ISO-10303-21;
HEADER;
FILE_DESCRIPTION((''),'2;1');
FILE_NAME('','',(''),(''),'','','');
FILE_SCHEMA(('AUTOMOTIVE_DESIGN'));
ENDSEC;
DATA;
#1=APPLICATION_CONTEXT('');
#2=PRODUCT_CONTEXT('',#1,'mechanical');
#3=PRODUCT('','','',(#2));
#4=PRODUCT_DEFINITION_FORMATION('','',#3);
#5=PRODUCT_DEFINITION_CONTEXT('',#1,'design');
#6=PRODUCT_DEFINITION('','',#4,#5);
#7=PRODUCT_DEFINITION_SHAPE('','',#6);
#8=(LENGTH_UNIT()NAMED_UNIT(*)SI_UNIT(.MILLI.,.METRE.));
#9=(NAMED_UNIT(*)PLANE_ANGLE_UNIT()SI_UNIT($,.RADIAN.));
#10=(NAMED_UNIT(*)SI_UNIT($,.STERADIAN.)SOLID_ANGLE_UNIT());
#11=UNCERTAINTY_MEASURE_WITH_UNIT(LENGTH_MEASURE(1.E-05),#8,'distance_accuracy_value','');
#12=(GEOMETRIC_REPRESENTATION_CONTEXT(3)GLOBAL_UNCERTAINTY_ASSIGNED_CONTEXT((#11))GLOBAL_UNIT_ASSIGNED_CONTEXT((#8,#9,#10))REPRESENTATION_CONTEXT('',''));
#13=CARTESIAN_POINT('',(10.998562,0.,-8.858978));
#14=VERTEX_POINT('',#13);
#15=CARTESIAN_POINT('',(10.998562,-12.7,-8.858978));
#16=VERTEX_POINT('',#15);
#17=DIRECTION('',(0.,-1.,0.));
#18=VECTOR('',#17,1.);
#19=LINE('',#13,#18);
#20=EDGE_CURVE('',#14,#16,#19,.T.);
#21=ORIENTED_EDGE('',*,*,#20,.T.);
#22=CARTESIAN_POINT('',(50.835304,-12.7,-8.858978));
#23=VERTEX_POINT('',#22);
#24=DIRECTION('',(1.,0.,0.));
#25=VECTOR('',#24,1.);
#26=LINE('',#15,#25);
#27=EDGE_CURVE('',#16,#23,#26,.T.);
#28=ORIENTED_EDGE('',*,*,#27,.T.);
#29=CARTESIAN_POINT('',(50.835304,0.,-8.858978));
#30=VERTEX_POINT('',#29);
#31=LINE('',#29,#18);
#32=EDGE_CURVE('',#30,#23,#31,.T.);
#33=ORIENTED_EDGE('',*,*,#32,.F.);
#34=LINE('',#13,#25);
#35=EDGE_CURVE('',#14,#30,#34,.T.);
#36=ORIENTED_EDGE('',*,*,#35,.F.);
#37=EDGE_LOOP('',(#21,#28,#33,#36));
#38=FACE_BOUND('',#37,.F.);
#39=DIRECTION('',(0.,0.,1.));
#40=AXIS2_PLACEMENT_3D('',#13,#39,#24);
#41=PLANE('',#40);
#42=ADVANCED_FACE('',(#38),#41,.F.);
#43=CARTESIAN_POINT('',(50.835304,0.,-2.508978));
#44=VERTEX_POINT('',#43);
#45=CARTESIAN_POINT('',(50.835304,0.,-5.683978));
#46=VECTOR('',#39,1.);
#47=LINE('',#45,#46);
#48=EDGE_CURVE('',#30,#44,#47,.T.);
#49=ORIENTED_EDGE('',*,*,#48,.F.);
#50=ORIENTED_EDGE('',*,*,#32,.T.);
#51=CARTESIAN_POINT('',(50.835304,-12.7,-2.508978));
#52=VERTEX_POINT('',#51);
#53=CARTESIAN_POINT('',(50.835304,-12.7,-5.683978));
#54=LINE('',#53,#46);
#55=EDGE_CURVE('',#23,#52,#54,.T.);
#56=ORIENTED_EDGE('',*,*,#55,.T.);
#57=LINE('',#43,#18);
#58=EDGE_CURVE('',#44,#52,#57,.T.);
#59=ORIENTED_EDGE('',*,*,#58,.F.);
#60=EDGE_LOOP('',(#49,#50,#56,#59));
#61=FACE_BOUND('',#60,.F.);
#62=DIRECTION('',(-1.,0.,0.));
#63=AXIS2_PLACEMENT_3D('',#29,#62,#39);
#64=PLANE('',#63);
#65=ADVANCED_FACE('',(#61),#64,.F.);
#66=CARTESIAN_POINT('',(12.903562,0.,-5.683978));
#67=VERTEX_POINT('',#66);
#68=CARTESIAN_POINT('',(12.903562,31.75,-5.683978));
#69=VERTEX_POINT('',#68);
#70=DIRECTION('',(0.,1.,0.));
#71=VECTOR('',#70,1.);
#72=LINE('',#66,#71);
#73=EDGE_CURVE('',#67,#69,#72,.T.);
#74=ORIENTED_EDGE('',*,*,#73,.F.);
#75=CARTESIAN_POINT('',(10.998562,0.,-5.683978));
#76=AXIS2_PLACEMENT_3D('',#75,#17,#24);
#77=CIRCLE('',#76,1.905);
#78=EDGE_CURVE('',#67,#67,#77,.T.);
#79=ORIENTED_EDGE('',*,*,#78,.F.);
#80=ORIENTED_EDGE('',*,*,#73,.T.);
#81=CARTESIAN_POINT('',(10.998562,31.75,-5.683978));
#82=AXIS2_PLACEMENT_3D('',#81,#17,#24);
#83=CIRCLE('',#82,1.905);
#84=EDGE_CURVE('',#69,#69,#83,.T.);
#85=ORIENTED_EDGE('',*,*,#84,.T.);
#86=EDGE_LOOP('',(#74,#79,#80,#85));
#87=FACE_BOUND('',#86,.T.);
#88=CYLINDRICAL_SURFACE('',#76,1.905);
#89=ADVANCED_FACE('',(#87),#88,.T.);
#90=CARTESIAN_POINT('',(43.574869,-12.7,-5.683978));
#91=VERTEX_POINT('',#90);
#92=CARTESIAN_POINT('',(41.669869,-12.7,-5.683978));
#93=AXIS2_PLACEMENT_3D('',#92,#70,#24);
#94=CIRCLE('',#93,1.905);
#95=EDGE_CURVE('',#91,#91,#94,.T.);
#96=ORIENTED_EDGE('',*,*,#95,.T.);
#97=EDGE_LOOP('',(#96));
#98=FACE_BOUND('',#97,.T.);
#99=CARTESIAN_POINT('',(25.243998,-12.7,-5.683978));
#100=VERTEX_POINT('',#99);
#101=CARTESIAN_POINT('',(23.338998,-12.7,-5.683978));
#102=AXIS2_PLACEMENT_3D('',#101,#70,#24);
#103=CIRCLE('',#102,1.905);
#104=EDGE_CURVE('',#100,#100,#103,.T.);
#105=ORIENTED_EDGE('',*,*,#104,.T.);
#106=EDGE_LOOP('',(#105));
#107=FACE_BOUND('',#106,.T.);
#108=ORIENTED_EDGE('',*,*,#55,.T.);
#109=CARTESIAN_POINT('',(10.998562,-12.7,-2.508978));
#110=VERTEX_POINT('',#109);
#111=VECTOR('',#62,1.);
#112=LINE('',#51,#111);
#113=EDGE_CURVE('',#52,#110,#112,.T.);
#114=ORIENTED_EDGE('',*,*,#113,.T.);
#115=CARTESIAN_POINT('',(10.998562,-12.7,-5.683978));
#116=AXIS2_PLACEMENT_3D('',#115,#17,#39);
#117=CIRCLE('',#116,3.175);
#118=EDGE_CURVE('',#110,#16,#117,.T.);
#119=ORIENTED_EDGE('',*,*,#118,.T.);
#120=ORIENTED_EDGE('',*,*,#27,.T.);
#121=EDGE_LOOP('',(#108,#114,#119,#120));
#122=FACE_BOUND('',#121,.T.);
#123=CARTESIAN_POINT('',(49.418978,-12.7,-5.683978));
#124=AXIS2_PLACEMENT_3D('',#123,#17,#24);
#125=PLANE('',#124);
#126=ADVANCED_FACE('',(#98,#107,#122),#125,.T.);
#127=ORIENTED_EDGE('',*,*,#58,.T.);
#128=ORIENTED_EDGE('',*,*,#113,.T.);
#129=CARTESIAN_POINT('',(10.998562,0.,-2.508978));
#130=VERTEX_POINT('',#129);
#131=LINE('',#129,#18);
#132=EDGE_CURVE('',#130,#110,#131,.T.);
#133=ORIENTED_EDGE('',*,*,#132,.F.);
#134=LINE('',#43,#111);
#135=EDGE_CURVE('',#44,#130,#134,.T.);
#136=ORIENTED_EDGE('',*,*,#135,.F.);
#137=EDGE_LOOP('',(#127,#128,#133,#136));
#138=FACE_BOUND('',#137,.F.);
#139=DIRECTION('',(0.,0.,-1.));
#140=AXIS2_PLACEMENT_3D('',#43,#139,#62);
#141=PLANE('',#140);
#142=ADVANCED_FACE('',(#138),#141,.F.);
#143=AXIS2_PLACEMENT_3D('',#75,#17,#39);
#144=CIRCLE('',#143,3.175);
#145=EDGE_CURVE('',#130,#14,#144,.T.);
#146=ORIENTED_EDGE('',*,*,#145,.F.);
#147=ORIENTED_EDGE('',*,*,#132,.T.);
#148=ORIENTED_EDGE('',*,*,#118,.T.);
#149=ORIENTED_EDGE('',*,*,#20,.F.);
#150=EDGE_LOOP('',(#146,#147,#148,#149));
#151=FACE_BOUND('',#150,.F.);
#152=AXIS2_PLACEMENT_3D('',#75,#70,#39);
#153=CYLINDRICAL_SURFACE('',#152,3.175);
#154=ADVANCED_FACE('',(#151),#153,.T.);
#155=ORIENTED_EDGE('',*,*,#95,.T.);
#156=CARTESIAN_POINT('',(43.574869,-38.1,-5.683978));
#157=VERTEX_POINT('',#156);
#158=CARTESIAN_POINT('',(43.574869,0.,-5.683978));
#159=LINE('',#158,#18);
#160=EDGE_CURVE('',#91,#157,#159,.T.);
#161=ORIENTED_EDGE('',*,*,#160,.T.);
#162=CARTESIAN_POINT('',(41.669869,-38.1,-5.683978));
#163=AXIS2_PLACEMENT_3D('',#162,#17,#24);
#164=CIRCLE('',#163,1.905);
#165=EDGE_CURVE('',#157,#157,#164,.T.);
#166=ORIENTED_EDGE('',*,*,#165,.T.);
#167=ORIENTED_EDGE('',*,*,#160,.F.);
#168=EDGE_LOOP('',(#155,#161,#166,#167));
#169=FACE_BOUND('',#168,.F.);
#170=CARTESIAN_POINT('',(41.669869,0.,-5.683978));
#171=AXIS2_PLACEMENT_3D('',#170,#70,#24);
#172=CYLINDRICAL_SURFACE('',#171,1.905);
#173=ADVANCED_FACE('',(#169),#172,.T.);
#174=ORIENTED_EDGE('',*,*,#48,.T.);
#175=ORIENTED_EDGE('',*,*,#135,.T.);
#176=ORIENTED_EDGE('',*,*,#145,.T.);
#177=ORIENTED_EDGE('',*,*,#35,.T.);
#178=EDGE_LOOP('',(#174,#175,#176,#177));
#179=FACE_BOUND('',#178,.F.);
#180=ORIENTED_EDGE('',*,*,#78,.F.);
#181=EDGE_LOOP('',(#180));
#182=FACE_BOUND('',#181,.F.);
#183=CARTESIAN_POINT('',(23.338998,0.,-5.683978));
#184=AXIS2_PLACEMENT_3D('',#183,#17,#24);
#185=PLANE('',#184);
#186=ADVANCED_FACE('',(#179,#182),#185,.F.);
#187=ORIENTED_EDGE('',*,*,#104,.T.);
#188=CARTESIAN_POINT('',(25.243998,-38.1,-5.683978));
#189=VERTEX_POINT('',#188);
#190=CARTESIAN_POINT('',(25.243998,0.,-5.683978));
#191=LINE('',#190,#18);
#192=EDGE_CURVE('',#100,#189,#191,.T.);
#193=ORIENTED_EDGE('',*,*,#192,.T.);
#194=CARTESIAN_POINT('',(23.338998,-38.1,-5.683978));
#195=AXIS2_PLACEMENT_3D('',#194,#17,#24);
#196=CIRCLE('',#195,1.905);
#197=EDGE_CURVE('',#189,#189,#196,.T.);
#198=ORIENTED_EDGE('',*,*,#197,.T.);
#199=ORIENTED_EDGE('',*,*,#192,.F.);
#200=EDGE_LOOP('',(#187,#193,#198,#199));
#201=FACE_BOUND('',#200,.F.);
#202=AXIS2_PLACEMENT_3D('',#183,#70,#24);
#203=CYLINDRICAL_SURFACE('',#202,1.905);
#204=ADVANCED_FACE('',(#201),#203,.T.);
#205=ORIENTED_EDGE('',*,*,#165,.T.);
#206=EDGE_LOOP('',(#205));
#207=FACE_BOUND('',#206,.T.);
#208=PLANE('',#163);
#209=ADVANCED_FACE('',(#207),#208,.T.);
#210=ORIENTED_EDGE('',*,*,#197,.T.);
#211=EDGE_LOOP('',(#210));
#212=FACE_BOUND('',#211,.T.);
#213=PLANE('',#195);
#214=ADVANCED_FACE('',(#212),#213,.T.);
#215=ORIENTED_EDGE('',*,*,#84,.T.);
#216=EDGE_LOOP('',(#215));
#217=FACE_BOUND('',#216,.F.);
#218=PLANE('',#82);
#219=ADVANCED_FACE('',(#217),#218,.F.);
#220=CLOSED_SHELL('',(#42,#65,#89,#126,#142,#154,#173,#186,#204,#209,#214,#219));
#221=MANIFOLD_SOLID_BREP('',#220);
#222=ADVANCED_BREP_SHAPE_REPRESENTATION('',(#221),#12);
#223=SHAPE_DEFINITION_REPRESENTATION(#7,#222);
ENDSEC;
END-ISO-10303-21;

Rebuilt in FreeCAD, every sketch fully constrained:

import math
import FreeCAD as App
import Part
import Sketcher
Q = App.Units.Quantity

doc = App.newDocument("Part")
body = doc.addObject("PartDesign::Body", "Body")

# Sketch on XZ plane
sketch1 = doc.addObject("Sketcher::SketchObject", "Sketch")
body.addObject(sketch1)
sketch1.AttachmentSupport = (doc.XZ_Plane, [""])
sketch1.MapMode = "FlatFace"
sketch1.addGeometry(Part.LineSegment(App.Vector(11, -8.9, 0), App.Vector(50.8, -8.9, 0)), False)
sketch1.addGeometry(Part.LineSegment(App.Vector(50.8, -8.9, 0), App.Vector(50.8, -2.5, 0)), False)
sketch1.addGeometry(Part.LineSegment(App.Vector(50.8, -2.5, 0), App.Vector(11, -2.5, 0)), False)
sketch1.addGeometry(Part.ArcOfCircle(Part.Circle(App.Vector(11, -5.7, 0), App.Vector(0, 0, 1), 3.2), math.radians(90), math.radians(270)), False)
sketch1.addConstraint(Sketcher.Constraint("Coincident", 0, 2, 1, 1))
sketch1.addConstraint(Sketcher.Constraint("Coincident", 1, 2, 2, 1))
sketch1.addConstraint(Sketcher.Constraint("Tangent", 2, 2, 3, 1))
sketch1.addConstraint(Sketcher.Constraint("Tangent", 3, 2, 0, 1))
sketch1.addConstraint(Sketcher.Constraint("Horizontal", 0))
sketch1.addConstraint(Sketcher.Constraint("Vertical", 1))
sketch1.addConstraint(Sketcher.Constraint("Horizontal", 2))
sketch1.addConstraint(Sketcher.Constraint("Radius", 3, Q("0.125 in")))
sketch1.addConstraint(Sketcher.Constraint("DistanceX", 0, 1, 0, 2, 39.836742))
sketch1.addConstraint(Sketcher.Constraint("DistanceX", -1, 1, 3, 3, 10.998562))
sketch1.addConstraint(Sketcher.Constraint("DistanceY", 3, 3, -1, 1, 5.683978))
pad1 = doc.addObject("PartDesign::Pad", "Pad")
body.addObject(pad1)
pad1.Profile = sketch1
pad1.Length = Q("0.5 in")

# Sketch on XZ plane
sketch2 = doc.addObject("Sketcher::SketchObject", "Sketch001")
body.addObject(sketch2)
sketch2.AttachmentSupport = (doc.XZ_Plane, [""])
sketch2.MapMode = "FlatFace"
sketch2.addGeometry(Part.Circle(App.Vector(23.3, -5.7, 0), App.Vector(0, 0, 1), 1.9), False)
sketch2.addGeometry(Part.Circle(App.Vector(41.7, -5.7, 0), App.Vector(0, 0, 1), 1.9), False)
sketch2.addConstraint(Sketcher.Constraint("Equal", 0, 1))
sketch2.addConstraint(Sketcher.Constraint("Horizontal", 0, 3, 1, 3))
sketch2.addConstraint(Sketcher.Constraint("Diameter", 0, Q("0.15 in")))
sketch2.addConstraint(Sketcher.Constraint("DistanceX", -1, 1, 0, 3, 23.338998))
sketch2.addConstraint(Sketcher.Constraint("DistanceX", -1, 1, 1, 3, 41.669869))
sketch2.addConstraint(Sketcher.Constraint("DistanceY", 0, 3, -1, 1, 5.683978))
pad2 = doc.addObject("PartDesign::Pad", "Pad001")
body.addObject(pad2)
pad2.Profile = sketch2
pad2.Length = Q("1.5 in")

# Sketch on XZ plane
sketch3 = doc.addObject("Sketcher::SketchObject", "Sketch002")
body.addObject(sketch3)
sketch3.AttachmentSupport = (doc.XZ_Plane, [""])
sketch3.MapMode = "FlatFace"
sketch3.addGeometry(Part.Circle(App.Vector(11, -5.7, 0), App.Vector(0, 0, 1), 1.9), False)
sketch3.addConstraint(Sketcher.Constraint("Diameter", 0, Q("0.15 in")))
sketch3.addConstraint(Sketcher.Constraint("DistanceX", -1, 1, 0, 3, 10.998562))
sketch3.addConstraint(Sketcher.Constraint("DistanceY", 0, 3, -1, 1, 5.683978))
pad3 = doc.addObject("PartDesign::Pad", "Pad002")
body.addObject(pad3)
pad3.Profile = sketch3
pad3.Length = Q("1.25 in")
pad3.Reversed = True

doc.recompute()
